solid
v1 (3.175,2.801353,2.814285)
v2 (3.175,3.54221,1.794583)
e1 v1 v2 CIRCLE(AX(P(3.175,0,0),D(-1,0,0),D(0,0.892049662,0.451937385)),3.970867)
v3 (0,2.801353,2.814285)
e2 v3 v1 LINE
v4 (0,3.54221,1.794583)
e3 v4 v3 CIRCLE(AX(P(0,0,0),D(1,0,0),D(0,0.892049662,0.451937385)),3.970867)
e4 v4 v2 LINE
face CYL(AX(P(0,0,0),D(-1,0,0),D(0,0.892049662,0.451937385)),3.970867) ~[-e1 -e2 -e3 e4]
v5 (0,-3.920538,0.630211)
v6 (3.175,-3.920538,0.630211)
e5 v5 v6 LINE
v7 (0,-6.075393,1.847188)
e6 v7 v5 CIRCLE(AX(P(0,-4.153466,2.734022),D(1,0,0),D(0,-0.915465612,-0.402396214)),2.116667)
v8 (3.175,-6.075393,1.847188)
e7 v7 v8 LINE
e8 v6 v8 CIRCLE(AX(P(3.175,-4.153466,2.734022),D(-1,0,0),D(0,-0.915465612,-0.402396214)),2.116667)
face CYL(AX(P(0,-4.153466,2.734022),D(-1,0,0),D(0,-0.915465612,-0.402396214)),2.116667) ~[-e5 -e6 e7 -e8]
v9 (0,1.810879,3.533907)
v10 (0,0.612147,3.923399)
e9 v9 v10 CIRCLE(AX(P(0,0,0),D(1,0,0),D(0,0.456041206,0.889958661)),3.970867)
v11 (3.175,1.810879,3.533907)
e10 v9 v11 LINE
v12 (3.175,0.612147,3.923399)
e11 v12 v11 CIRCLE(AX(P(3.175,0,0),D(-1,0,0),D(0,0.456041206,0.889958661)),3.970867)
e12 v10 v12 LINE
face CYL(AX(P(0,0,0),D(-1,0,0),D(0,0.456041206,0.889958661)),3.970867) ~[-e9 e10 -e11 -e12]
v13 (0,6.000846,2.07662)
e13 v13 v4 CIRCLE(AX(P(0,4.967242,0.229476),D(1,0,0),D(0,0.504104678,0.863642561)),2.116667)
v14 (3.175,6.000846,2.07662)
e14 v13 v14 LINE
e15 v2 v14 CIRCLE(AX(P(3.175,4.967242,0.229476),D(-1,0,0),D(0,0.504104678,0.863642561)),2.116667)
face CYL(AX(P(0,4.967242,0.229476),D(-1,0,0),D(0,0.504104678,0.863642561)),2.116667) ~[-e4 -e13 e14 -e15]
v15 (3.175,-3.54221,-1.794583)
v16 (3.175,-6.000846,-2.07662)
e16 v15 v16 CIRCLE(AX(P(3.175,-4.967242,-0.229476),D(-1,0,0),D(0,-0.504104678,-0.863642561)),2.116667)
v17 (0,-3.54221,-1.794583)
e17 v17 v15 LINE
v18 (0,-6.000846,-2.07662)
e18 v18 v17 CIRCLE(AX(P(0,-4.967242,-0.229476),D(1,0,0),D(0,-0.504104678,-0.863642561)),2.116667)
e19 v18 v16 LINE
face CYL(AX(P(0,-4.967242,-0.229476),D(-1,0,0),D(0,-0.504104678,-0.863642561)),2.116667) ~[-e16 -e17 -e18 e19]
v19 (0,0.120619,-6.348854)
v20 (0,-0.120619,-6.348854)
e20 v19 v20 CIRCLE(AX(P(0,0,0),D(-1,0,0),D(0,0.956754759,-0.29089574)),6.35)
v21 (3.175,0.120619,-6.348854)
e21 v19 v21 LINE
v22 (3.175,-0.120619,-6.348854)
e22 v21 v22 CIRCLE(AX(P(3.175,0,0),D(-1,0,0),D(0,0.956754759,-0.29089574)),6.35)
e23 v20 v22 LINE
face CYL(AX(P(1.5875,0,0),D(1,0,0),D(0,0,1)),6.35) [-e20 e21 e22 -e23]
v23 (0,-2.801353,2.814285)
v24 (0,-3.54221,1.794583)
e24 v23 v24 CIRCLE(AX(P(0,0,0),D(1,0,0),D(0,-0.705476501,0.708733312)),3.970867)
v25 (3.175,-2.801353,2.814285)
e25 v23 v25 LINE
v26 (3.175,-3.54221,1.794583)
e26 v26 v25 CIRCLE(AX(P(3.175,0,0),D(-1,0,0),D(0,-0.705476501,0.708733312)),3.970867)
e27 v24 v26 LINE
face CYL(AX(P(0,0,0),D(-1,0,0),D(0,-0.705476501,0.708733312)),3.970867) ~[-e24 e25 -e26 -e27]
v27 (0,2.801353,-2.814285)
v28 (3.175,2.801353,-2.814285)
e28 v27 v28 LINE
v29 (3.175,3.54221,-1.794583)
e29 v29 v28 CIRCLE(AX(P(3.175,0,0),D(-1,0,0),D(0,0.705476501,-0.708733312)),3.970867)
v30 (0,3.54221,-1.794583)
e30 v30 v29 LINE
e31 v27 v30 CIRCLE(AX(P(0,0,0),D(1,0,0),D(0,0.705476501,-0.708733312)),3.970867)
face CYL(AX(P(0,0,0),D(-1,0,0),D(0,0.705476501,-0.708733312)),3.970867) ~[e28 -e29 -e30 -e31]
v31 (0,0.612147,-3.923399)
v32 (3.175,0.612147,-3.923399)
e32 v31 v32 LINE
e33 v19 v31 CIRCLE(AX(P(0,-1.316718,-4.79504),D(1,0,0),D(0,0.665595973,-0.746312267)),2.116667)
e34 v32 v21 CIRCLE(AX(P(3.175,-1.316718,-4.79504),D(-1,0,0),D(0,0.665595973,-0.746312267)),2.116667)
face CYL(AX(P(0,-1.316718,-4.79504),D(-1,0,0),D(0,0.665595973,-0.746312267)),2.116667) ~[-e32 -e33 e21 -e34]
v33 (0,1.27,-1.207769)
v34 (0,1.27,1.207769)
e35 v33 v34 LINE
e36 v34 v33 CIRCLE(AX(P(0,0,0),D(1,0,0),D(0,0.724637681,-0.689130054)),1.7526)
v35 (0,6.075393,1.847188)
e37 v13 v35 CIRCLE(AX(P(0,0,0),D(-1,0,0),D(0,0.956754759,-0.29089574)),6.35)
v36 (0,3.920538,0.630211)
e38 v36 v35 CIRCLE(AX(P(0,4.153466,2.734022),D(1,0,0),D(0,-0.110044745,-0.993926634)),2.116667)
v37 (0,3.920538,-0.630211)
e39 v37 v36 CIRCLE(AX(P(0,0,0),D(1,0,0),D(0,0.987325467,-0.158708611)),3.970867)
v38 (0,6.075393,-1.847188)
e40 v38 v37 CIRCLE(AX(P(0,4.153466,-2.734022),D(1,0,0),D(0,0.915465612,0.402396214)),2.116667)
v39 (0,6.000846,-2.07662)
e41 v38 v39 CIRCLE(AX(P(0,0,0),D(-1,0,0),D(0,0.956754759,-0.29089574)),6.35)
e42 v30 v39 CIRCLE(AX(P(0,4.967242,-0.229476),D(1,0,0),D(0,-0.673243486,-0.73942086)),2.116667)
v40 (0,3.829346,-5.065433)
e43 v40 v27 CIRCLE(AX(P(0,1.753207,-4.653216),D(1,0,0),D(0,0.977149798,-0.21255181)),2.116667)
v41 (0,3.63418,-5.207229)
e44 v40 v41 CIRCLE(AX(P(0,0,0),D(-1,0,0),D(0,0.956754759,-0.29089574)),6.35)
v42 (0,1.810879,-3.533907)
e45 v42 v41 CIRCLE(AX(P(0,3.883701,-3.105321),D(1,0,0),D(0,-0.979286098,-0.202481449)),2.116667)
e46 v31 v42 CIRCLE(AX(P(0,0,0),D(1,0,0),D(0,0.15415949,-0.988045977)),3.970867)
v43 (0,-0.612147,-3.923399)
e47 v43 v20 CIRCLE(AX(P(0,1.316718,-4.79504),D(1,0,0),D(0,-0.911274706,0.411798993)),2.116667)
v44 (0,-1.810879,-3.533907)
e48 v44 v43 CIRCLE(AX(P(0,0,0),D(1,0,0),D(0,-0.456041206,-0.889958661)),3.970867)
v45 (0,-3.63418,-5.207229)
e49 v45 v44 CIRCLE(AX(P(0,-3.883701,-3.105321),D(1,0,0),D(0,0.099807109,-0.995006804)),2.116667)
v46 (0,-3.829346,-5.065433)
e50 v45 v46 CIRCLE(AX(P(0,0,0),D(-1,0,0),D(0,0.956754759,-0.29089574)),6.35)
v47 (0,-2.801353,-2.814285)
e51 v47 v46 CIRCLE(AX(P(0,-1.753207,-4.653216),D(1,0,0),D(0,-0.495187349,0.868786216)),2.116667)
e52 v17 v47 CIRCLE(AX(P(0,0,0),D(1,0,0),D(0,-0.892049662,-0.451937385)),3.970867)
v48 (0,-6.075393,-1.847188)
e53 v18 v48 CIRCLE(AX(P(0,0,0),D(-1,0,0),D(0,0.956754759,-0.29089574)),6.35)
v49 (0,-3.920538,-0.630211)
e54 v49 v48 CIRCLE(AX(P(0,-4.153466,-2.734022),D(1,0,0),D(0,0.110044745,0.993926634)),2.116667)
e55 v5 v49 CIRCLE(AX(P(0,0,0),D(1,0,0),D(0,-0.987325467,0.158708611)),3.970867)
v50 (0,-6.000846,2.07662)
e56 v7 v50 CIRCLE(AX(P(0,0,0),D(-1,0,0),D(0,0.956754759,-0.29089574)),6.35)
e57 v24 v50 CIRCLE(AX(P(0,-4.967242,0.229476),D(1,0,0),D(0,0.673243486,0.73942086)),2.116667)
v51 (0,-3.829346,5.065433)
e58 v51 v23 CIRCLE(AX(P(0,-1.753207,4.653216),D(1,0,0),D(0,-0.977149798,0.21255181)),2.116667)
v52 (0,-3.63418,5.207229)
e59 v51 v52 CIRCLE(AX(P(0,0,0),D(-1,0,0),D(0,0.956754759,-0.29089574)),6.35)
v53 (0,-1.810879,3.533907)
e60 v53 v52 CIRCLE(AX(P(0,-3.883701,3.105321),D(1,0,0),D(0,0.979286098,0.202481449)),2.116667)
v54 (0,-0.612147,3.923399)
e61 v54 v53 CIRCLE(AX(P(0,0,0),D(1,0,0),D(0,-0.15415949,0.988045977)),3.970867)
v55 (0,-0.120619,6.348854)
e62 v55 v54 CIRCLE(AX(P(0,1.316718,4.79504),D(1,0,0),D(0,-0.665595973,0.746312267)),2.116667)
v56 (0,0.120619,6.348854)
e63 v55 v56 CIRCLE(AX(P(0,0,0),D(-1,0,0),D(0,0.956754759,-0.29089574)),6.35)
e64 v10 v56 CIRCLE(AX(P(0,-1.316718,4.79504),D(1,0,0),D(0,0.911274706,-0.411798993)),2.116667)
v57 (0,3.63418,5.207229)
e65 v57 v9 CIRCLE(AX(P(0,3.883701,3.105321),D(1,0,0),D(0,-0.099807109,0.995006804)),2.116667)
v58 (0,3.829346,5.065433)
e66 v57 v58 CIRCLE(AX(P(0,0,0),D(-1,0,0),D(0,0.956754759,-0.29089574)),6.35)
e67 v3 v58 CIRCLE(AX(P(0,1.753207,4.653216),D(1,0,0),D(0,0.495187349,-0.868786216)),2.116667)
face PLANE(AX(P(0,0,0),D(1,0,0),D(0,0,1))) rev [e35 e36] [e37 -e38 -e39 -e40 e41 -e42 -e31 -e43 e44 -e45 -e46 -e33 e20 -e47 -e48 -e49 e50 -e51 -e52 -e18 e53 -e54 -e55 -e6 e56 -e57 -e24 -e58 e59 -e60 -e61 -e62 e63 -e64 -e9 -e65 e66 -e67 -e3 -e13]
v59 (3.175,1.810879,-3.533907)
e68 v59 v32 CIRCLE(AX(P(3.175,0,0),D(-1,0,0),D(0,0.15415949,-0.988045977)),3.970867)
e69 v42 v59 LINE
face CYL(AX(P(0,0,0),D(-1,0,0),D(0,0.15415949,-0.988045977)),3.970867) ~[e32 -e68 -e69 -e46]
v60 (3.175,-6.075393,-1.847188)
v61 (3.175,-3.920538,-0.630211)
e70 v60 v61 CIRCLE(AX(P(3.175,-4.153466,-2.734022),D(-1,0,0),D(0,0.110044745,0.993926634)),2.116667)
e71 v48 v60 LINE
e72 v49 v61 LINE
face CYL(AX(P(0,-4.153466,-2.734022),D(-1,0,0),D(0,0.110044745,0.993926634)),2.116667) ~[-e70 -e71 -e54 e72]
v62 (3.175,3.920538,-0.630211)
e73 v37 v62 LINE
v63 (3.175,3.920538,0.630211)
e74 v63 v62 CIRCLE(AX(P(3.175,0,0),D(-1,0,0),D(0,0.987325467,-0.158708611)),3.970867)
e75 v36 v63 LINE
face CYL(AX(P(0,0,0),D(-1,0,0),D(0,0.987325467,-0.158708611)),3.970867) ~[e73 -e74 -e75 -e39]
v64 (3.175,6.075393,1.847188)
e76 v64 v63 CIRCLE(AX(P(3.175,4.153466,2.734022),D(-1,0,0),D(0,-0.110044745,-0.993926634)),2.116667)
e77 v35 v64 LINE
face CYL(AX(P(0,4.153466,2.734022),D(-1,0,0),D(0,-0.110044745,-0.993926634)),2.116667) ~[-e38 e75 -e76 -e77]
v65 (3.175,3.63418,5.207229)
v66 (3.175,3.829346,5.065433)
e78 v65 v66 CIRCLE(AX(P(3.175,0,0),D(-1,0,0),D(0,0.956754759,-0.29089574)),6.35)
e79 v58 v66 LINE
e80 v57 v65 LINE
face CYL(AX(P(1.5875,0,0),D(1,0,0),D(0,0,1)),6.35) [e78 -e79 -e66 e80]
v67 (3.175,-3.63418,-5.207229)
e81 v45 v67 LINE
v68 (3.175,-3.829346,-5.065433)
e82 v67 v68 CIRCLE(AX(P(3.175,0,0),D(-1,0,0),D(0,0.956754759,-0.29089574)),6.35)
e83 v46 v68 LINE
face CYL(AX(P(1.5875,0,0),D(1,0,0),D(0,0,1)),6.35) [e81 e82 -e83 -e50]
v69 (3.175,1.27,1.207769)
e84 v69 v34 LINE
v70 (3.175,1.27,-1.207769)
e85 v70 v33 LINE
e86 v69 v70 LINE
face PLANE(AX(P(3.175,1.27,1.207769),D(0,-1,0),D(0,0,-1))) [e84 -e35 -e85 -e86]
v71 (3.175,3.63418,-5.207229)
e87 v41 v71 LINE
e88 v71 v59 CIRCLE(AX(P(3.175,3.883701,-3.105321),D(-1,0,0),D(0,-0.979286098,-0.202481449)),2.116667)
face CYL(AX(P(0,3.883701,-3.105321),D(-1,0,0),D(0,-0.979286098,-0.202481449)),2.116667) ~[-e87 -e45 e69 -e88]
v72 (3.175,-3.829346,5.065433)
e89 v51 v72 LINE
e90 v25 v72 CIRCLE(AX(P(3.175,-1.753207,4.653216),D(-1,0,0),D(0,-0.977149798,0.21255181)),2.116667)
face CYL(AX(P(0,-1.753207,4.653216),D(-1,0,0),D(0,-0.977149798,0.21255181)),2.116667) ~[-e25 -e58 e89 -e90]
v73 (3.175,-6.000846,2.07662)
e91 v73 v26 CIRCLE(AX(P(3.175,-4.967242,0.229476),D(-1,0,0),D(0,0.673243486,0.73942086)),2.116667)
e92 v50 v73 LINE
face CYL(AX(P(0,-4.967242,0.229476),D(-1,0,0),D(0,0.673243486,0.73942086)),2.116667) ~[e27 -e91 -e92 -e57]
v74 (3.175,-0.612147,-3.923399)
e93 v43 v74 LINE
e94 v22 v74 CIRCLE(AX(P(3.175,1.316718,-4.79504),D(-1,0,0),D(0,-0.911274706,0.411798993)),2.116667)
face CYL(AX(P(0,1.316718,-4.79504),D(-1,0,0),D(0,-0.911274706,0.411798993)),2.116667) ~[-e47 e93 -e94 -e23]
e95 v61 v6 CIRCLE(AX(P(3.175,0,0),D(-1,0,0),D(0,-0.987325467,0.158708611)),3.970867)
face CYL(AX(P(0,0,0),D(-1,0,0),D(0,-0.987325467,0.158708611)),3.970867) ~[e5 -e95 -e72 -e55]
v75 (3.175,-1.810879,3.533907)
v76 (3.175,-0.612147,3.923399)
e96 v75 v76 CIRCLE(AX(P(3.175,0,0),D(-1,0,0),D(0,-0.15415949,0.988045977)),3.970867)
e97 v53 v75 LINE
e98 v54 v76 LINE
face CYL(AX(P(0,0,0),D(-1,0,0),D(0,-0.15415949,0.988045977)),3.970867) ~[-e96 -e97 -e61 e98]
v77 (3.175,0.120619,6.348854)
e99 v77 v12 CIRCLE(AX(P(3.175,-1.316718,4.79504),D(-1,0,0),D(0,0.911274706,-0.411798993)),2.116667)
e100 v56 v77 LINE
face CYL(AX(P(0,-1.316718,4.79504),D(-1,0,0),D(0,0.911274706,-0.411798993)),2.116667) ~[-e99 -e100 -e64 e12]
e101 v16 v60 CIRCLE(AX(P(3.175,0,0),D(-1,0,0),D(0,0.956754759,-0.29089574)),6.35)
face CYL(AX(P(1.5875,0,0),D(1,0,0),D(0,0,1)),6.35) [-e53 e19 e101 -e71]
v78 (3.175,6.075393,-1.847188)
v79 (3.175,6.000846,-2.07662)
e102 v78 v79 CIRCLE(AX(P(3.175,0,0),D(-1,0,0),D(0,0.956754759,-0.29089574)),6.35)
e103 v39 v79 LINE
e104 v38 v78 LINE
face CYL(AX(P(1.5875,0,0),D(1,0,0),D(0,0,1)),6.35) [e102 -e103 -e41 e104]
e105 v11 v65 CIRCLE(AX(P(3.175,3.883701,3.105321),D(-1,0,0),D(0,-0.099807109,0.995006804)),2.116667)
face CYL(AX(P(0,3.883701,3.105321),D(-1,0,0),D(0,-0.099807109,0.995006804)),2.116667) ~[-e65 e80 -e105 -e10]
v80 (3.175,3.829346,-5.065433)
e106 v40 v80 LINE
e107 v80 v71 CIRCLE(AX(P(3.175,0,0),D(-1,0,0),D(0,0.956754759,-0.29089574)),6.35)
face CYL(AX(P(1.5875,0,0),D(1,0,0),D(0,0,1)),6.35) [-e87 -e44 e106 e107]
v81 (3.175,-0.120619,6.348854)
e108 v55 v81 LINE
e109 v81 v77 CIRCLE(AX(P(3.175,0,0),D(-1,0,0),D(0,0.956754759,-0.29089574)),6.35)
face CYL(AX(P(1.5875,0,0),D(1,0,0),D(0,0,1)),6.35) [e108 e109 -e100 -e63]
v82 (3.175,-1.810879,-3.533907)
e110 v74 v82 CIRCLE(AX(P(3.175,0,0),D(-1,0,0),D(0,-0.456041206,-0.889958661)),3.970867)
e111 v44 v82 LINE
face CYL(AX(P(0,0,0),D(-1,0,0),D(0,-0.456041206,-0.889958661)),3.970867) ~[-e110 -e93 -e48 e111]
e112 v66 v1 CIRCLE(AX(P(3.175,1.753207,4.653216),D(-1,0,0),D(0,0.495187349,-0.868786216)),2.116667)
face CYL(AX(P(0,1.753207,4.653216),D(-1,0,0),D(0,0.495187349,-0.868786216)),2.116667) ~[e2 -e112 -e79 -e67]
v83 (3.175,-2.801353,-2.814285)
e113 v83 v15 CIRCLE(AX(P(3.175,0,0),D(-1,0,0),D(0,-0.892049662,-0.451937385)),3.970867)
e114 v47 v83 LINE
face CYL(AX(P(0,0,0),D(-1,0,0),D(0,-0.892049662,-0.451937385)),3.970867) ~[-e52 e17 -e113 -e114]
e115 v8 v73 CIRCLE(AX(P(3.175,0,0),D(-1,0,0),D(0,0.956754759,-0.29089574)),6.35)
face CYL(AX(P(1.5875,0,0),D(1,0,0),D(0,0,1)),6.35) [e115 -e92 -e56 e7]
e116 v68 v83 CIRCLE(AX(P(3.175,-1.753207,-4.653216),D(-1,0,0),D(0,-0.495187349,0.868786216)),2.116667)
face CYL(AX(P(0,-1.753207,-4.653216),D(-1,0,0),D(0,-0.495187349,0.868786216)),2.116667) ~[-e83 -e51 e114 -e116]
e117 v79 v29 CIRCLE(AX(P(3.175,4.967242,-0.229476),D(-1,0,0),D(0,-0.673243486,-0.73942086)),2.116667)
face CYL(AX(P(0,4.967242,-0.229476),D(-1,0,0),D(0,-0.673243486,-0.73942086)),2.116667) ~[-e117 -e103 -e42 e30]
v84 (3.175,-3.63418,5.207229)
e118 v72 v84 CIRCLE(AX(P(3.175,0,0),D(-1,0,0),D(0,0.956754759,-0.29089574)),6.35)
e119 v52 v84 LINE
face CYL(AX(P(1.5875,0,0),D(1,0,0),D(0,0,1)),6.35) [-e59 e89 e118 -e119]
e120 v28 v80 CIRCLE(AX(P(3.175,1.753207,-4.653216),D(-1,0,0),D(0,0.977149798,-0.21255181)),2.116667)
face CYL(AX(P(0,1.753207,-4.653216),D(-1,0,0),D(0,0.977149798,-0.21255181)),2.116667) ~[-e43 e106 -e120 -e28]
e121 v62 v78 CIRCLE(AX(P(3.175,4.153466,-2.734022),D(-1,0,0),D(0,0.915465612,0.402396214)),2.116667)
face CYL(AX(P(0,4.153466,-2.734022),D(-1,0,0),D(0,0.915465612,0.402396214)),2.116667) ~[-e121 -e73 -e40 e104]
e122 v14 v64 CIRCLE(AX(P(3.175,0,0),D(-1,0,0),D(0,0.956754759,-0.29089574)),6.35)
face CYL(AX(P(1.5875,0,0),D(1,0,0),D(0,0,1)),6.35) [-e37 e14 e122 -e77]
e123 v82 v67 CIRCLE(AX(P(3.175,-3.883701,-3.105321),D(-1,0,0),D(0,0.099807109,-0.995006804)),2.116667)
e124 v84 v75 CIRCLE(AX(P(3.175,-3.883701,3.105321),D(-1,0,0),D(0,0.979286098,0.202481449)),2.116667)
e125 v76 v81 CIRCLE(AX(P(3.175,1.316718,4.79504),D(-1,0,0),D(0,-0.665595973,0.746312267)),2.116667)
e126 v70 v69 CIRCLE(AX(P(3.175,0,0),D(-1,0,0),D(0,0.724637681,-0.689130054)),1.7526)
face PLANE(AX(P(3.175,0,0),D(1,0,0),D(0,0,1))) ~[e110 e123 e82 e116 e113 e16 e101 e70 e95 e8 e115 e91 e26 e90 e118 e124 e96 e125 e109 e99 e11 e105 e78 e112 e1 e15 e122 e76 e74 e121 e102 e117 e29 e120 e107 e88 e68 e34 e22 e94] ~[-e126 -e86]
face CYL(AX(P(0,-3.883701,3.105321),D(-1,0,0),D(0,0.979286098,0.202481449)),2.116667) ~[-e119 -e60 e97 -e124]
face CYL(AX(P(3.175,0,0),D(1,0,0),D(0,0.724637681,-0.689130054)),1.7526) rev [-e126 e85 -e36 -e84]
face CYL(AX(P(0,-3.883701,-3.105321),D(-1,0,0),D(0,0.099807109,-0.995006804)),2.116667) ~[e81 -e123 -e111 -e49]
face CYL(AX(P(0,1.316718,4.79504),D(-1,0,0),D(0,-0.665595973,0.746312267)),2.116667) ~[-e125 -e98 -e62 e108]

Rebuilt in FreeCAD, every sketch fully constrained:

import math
import FreeCAD as App
import Part
import Sketcher

V = App.Vector
Q = App.Units.Quantity

doc = App.newDocument("Part")
body = doc.addObject("PartDesign::Body", "Body")

sketch1 = body.newObject("Sketcher::SketchObject", "Sketch")
sketch1.AttachmentSupport = (doc.getObject("XZ_Plane"), [""])
sketch1.MapMode = "FlatFace"
sketch1.addGeometry([
    Part.LineSegment(V(0, -6.3, 0), V(0, 0, 0)),
    Part.LineSegment(V(0, 0, 0), V(3.2, 0, 0)),
    Part.LineSegment(V(3.2, 0, 0), V(3.2, -6.3, 0)),
    Part.LineSegment(V(3.2, -6.3, 0), V(0, -6.3, 0)),
], False)
sketch1.addConstraint([
    Sketcher.Constraint("Coincident", 0, 2, 1, 1),
    Sketcher.Constraint("Coincident", 1, 2, 2, 1),
    Sketcher.Constraint("Coincident", 2, 2, 3, 1),
    Sketcher.Constraint("Coincident", 3, 2, 0, 1),
    Sketcher.Constraint("Vertical", 0),
    Sketcher.Constraint("Horizontal", 1),
    Sketcher.Constraint("Vertical", 2),
    Sketcher.Constraint("Horizontal", 3),
    Sketcher.Constraint("Coincident", 0, 2, -1, 1),
    Sketcher.Constraint("DistanceY", 0, 1, 0, 2, Q("0.25 in")),
    Sketcher.Constraint("DistanceX", 1, 1, 1, 2, Q("0.125 in")),
])
revolution = body.newObject("PartDesign::Revolution", "Revolution")
revolution.Profile = sketch1
revolution.ReferenceAxis = (sketch1, ["H_Axis"])
revolution.Angle = 360

sketch2 = body.newObject("Sketcher::SketchObject", "Sketch001")
sketch2.AttachmentSupport = (doc.getObject("YZ_Plane"), [""])
sketch2.MapMode = "FlatFace"
sketch2.addGeometry([
    Part.ArcOfCircle(Part.Circle(V(0, 0, 0), V(0, 0, 1), 4), math.radians(-9.13), math.radians(9.13)),
    Part.ArcOfCircle(Part.Circle(V(4.2, -2.7, 0), V(0, 0, 1), 2.1), math.radians(24), math.radians(96)),
    Part.ArcOfCircle(Part.Circle(V(0, 0, 0), V(0, 0, 1), 6.4), math.radians(-17), math.radians(17)),
    Part.ArcOfCircle(Part.Circle(V(4.2, 2.7, 0), V(0, 0, 1), 2.1), math.radians(-96), math.radians(-24)),
], False)
sketch2.addConstraint([
    Sketcher.Constraint("Coincident", 0, 1, 1, 2),
    Sketcher.Constraint("Coincident", 1, 1, 2, 1),
    Sketcher.Constraint("Coincident", 2, 2, 3, 2),
    Sketcher.Constraint("Coincident", 3, 1, 0, 2),
    Sketcher.Constraint("Coincident", 0, 3, -1, 1),
    Sketcher.Constraint("Coincident", 2, 3, -1, 1),
    Sketcher.Constraint("Equal", 1, 3),
    Sketcher.Constraint("Symmetric", 1, 3, 3, 3, -1),
    Sketcher.Constraint("Radius", 2, Q("0.251 in")),
    Sketcher.Constraint("Radius", 0, 3.970867),
    Sketcher.Constraint("Radius", 1, 2.116667),
    Sketcher.Constraint("DistanceX", -1, 1, 1, 1, 6.091201),
    Sketcher.Constraint("DistanceY", 0, 1, -1, 1, 0.630211),
])
pocket1 = body.newObject("PartDesign::Pocket", "Pocket")
pocket1.Profile = sketch2
pocket1.Type = "ThroughAll"
pocket1.Reversed = True
doc.recompute()

polarpattern = body.newObject("PartDesign::PolarPattern", "PolarPattern")
polarpattern.Originals = [pocket1]
polarpattern.Axis = (doc.getObject("X_Axis"), [""])
polarpattern.Angle = 360
polarpattern.Occurrences = 10
body.Tip = polarpattern

sketch3 = body.newObject("Sketcher::SketchObject", "Sketch002")
sketch3.AttachmentSupport = (doc.getObject("YZ_Plane"), [""])
sketch3.MapMode = "FlatFace"
sketch3.addGeometry(Part.Circle(V(0, 0, 0), V(0, 0, 1), 1), False)
sketch3.addConstraint([
    Sketcher.Constraint("Coincident", 0, 3, -1, 1),
    Sketcher.Constraint("Diameter", 0, Q("0.0787 in")),
])
pocket2 = body.newObject("PartDesign::Pocket", "Pocket001")
pocket2.Profile = sketch3
pocket2.Length = 101.600102
pocket2.Midplane = True

sketch4 = body.newObject("Sketcher::SketchObject", "Sketch003")
sketch4.AttachmentSupport = (doc.getObject("YZ_Plane"), [""])
sketch4.MapMode = "FlatFace"
sketch4.AttachmentOffset = App.Placement(V(0, 0, 0.125 * 25.4), App.Rotation())
sketch4.addGeometry([
    Part.LineSegment(V(1.3, -1.2, 0), V(1.3, 1.2, 0)),
    Part.ArcOfCircle(Part.Circle(V(0, 0, 0), V(0, 0, 1), 1.8), math.radians(44), math.radians(316)),
], False)
sketch4.addConstraint([
    Sketcher.Constraint("Coincident", 0, 1, 1, 2),
    Sketcher.Constraint("Coincident", 1, 1, 0, 2),
    Sketcher.Constraint("Vertical", 0),
    Sketcher.Constraint("Coincident", 1, 3, -1, 1),
    Sketcher.Constraint("Radius", 1, Q("0.069 in")),
    Sketcher.Constraint("DistanceX", -1, 1, 0, 1, Q("0.05 in")),
])
pocket3 = body.newObject("PartDesign::Pocket", "Pocket002")
pocket3.Profile = sketch4
pocket3.Type = "ThroughAll"

doc.recompute()
